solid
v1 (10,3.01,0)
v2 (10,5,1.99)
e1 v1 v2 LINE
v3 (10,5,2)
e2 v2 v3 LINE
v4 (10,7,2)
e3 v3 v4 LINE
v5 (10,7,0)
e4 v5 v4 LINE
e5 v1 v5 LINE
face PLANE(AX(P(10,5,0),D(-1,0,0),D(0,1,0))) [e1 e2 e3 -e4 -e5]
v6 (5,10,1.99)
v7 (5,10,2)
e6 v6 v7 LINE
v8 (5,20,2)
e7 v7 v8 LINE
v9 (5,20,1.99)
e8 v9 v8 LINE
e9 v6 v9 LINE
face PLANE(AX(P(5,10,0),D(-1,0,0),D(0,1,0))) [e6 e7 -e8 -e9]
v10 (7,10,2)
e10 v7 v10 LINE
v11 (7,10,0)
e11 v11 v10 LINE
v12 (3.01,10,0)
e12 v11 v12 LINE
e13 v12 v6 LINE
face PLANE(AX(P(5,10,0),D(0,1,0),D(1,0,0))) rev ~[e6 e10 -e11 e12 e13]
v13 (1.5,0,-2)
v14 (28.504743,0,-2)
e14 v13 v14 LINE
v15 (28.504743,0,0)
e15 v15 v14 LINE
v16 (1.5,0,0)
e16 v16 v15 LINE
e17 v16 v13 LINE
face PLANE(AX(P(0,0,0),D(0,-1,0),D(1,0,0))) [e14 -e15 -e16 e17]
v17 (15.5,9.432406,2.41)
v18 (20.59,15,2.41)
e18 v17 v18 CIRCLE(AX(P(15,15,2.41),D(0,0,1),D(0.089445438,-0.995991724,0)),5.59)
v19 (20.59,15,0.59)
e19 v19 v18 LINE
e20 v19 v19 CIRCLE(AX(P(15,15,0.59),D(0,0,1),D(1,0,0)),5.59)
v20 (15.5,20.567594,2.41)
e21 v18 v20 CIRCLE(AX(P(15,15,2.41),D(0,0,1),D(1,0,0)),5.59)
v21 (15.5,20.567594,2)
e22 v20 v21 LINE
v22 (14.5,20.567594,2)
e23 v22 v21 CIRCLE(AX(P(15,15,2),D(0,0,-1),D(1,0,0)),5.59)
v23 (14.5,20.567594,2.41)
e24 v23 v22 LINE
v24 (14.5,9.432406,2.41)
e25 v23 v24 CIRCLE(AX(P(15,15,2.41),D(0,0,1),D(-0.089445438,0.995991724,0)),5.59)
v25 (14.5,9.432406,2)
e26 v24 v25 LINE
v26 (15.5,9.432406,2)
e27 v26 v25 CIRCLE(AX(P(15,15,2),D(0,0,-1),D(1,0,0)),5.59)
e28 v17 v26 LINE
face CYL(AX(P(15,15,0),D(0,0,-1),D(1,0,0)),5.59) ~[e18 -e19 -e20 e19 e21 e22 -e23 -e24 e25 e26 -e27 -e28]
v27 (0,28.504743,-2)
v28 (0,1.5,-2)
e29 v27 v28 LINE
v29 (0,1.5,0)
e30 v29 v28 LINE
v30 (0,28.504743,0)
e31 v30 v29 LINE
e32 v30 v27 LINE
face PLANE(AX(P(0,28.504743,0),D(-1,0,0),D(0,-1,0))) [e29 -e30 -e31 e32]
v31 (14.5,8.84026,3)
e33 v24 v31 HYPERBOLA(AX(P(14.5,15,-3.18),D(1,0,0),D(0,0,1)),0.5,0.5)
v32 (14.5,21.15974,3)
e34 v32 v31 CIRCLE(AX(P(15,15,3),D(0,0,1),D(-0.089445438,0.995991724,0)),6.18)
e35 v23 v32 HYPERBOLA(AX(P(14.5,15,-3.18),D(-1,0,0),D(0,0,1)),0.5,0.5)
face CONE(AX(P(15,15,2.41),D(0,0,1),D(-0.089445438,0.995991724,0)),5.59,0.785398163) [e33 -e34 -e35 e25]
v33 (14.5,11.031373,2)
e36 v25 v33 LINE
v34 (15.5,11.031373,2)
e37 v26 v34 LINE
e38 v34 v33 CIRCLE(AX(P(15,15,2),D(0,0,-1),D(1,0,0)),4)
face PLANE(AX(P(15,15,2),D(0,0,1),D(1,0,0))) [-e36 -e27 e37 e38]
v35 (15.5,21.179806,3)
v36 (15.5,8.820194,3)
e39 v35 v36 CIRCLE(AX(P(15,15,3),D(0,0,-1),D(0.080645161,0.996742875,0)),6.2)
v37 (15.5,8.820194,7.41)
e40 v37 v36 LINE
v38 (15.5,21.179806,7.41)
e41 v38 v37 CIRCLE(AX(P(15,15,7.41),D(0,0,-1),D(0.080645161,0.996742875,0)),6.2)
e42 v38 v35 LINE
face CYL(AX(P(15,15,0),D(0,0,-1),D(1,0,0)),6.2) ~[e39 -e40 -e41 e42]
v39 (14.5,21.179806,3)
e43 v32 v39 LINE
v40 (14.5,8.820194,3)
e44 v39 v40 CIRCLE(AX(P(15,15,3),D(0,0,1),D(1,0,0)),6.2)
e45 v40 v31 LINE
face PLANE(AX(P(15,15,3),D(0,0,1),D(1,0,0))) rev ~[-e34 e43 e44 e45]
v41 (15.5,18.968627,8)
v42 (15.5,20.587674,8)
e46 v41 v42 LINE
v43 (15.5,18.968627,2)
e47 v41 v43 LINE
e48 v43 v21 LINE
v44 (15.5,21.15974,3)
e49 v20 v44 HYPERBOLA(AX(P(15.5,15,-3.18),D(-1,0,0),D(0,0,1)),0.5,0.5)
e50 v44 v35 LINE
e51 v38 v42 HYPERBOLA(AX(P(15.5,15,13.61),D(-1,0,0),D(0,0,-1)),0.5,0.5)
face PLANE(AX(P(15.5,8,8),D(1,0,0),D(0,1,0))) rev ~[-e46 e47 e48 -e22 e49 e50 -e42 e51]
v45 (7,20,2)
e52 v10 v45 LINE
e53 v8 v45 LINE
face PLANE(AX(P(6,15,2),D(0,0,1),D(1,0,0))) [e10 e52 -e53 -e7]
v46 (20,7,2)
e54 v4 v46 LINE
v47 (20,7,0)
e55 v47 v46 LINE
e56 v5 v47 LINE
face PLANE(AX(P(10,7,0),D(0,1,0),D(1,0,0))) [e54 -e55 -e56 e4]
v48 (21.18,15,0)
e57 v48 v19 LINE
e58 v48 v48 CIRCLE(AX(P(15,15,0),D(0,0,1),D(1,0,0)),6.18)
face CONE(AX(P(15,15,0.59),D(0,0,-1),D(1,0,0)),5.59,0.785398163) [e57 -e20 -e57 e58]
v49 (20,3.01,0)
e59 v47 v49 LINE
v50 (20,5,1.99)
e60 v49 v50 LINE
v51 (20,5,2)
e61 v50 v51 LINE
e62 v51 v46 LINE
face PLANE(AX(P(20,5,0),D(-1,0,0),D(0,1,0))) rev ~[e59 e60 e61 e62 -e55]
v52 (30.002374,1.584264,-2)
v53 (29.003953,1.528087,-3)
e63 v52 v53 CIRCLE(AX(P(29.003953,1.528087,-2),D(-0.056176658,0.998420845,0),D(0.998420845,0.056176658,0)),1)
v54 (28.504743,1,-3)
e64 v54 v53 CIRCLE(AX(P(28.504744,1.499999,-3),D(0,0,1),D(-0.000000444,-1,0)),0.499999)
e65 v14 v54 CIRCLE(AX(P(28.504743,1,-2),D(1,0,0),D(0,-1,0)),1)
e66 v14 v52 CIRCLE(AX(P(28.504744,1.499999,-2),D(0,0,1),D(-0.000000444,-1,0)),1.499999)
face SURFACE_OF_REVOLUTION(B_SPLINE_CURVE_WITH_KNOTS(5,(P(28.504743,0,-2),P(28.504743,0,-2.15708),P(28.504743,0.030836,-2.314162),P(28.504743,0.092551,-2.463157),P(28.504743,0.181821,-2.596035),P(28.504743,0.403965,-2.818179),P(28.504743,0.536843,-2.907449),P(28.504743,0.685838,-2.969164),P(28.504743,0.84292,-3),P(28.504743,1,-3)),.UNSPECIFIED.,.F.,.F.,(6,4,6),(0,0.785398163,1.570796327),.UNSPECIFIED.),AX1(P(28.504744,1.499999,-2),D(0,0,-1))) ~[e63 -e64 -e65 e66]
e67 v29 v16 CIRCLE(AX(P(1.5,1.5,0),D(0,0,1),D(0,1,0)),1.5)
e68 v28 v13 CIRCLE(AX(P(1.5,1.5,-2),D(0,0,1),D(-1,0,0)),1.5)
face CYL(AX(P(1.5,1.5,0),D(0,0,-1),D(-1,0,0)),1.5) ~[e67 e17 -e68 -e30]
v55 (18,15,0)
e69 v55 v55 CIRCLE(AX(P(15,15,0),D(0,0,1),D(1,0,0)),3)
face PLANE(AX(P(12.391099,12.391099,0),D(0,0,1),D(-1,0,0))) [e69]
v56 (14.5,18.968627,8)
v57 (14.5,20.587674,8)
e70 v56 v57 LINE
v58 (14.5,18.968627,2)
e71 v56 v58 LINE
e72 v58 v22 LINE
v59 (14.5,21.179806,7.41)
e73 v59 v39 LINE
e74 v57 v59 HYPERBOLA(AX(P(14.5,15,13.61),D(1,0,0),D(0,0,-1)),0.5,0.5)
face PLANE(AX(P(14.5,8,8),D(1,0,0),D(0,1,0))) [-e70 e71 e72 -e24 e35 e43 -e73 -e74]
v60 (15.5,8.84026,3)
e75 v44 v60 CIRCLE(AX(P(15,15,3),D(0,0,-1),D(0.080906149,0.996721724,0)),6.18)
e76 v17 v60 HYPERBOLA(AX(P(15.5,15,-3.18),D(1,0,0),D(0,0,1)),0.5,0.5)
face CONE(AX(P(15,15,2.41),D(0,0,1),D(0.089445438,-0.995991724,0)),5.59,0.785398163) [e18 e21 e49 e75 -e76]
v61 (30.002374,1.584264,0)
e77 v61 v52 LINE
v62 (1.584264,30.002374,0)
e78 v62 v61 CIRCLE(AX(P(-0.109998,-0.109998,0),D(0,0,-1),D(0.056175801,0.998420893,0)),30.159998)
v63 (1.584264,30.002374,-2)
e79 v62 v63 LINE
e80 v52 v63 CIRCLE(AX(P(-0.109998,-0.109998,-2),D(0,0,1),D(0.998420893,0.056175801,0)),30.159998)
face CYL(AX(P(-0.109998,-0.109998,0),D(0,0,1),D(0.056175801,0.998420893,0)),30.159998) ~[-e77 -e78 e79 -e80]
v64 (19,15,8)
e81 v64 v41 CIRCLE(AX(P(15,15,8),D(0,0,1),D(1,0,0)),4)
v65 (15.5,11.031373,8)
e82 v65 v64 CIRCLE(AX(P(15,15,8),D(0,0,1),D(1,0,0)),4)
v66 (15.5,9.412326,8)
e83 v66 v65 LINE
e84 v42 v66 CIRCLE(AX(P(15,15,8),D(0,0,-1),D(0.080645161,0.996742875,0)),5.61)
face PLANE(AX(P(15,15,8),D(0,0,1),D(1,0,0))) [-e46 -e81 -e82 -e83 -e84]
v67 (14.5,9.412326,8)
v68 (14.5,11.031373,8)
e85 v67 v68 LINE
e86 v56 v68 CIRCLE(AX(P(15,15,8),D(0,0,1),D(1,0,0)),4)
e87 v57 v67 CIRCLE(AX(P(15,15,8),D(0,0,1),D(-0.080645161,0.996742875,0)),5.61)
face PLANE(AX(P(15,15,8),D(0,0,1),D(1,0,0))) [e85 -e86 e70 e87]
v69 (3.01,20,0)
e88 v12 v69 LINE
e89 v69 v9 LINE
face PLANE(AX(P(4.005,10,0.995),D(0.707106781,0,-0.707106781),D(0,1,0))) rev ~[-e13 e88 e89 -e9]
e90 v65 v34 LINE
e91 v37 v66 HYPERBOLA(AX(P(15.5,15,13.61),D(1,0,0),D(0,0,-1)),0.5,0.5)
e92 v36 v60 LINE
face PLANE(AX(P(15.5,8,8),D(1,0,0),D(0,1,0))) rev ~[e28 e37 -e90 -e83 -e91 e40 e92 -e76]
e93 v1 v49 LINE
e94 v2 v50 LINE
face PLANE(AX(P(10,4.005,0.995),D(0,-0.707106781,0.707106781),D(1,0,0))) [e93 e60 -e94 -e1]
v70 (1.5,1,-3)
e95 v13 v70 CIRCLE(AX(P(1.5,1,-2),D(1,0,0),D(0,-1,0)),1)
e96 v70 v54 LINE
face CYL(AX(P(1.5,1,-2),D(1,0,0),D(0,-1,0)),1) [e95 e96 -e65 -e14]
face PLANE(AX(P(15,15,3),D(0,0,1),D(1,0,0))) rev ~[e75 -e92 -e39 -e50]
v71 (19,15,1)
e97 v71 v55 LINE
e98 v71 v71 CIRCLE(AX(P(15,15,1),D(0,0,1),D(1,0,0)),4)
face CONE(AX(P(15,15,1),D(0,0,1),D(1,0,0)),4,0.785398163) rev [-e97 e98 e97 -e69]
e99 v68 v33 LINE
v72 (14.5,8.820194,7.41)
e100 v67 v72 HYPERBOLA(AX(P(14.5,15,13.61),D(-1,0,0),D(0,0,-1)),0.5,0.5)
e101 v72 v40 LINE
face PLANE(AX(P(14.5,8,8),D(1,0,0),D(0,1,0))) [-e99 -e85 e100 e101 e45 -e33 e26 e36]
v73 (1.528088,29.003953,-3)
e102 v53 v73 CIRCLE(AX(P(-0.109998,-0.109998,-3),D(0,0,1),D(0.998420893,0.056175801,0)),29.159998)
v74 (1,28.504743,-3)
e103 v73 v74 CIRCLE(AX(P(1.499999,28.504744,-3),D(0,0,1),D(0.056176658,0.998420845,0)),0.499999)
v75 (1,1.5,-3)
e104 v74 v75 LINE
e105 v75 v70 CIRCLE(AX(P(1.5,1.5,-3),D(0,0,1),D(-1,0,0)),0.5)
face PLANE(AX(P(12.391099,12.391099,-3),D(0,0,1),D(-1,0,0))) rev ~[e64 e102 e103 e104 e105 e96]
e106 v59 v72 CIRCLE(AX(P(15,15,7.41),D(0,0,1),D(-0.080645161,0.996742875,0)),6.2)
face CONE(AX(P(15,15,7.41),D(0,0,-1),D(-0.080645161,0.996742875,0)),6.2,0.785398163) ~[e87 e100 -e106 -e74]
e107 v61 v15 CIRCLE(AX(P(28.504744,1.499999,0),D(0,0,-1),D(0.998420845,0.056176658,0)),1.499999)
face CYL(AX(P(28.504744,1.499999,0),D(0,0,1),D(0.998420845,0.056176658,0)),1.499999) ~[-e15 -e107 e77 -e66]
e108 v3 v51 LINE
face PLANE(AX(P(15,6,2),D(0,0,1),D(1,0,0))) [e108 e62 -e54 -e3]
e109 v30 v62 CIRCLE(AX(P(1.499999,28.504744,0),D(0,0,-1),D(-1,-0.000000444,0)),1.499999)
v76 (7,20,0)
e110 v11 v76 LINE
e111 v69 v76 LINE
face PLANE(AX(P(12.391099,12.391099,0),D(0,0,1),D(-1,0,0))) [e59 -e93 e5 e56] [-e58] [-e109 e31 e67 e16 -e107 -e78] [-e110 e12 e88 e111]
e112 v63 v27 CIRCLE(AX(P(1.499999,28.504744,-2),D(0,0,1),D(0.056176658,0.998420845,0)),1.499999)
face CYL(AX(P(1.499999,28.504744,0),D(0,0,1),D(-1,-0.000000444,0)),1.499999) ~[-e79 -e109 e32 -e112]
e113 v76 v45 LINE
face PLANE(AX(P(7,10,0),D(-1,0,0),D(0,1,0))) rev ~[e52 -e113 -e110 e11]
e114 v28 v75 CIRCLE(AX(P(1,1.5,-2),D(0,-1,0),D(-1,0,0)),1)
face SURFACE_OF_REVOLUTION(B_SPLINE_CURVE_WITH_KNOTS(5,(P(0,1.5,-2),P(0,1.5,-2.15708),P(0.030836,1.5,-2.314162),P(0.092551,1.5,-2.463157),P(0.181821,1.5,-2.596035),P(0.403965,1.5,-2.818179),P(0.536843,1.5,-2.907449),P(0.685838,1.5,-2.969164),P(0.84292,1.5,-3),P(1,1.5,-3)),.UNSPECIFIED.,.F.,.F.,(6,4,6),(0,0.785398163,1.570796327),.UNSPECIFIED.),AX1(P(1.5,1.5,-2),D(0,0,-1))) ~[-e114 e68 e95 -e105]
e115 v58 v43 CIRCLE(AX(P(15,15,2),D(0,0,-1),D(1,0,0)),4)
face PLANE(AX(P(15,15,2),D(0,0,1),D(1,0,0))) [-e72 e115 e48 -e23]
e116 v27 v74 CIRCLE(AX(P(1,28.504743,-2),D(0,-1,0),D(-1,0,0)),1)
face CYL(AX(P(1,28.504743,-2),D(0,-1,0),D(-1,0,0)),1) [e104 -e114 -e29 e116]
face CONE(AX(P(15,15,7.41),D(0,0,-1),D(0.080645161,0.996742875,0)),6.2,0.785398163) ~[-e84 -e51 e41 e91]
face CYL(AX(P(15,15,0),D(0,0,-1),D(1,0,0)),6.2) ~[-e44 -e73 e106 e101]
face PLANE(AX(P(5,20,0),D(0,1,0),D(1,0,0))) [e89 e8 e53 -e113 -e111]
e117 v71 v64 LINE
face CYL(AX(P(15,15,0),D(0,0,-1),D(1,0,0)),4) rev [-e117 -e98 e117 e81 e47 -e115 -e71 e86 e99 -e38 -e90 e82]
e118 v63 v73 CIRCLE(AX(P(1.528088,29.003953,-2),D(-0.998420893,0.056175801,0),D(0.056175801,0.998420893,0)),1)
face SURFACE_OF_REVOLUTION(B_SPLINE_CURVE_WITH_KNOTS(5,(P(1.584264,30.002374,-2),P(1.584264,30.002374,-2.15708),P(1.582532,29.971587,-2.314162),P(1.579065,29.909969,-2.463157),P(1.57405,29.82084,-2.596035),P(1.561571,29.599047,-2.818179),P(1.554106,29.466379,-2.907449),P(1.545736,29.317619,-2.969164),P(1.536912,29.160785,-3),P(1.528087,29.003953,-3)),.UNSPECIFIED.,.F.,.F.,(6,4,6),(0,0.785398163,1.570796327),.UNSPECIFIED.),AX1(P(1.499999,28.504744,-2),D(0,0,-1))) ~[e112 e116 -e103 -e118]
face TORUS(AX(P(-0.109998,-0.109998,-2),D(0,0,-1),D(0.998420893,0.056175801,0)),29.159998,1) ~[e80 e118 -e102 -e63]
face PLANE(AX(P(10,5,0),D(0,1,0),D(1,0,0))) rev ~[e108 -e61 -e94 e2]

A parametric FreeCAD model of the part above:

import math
import FreeCAD as App
import Part
import Sketcher
Q = App.Units.Quantity


def edges_at(feature, points):
    """Names of the edges that pass closest to the given points."""
    edges = feature.Shape.Edges
    near = lambda p: min(range(len(edges)), key=lambda i: edges[i].distToShape(Part.Vertex(*p))[0])
    return sorted({f"Edge{near(p) + 1}" for p in points})


def add_polygon(sketch, points):
    """Adds a closed chain of lines whose ends are joined by coincident constraints."""
    first, n = sketch.GeometryCount, len(points)
    for a, b in zip(points, points[1:] + points[:1]):
        sketch.addGeometry(Part.LineSegment(App.Vector(*a, 0), App.Vector(*b, 0)), False)
    for i in range(n):
        sketch.addConstraint(Sketcher.Constraint("Coincident", first + i, 2, first + (i + 1) % n, 1))

doc = App.newDocument("Part")
body = doc.addObject("PartDesign::Body", "Body")

sketch1 = body.newObject("Sketcher::SketchObject", "Sketch")
sketch1.AttachmentSupport = (doc.getObject("XY_Plane"), [""])
sketch1.MapMode = "FlatFace"
sketch1.addGeometry([
    Part.Circle(App.Vector(15, 15, 0), App.Vector(0, 0, 1), 6.2),
    Part.Circle(App.Vector(15, 15, 0), App.Vector(0, 0, 1), 4),
], False)
sketch1.addConstraint([
    Sketcher.Constraint("Coincident", 1, 3, 0, 3),
    Sketcher.Constraint("Diameter", 1, Q("8 mm")),
    Sketcher.Constraint("Diameter", 0, Q("12.4 mm")),
    Sketcher.Constraint("DistanceX", -1, 1, 0, 3, Q("15 mm")),
    Sketcher.Constraint("DistanceY", -1, 1, 0, 3, Q("15 mm")),
])
pad1 = body.newObject("PartDesign::Pad", "Pad")
pad1.Profile = sketch1
pad1.Length = 8

sketch2 = body.newObject("Sketcher::SketchObject", "Sketch001")
sketch2.AttachmentSupport = (doc.getObject("XY_Plane"), [""])
sketch2.MapMode = "FlatFace"
sketch2.addGeometry([
    Part.LineSegment(App.Vector(0, 0, 0), App.Vector(0, 28.5, 0)),
    Part.ArcOfCircle(Part.Circle(App.Vector(1.5, 28.5, 0), App.Vector(0, 0, 1), 1.5), math.radians(87), math.radians(180)),
    Part.ArcOfCircle(Part.Circle(App.Vector(-0.1, -0.1, 0), App.Vector(0, 0, 1), 30.2), math.radians(3), math.radians(87)),
    Part.ArcOfCircle(Part.Circle(App.Vector(28.5, 1.5, 0), App.Vector(0, 0, 1), 1.5), math.radians(-90), math.radians(3)),
    Part.LineSegment(App.Vector(28.5, 0, 0), App.Vector(0, 0, 0)),
], False)
sketch2.addConstraint([
    Sketcher.Constraint("Tangent", 0, 2, 1, 2),
    Sketcher.Constraint("Tangent", 1, 1, 2, 2),
    Sketcher.Constraint("Tangent", 2, 1, 3, 2),
    Sketcher.Constraint("Tangent", 3, 1, 4, 1),
    Sketcher.Constraint("Coincident", 4, 2, 0, 1),
    Sketcher.Constraint("Vertical", 0),
    Sketcher.Constraint("Horizontal", 4),
    Sketcher.Constraint("Coincident", 4, 2, -1, 1),
    Sketcher.Constraint("Equal", 1, 3),
    Sketcher.Constraint("Equal", 4, 0),
    Sketcher.Constraint("Radius", 1, Q("1.499999 mm")),
    Sketcher.Constraint("DistanceX", 2, 3, -1, 1, Q("0.109998 mm")),
    Sketcher.Constraint("Radius", 2, Q("30.159998 mm")),
])
pad2 = body.newObject("PartDesign::Pad", "Pad001")
pad2.Profile = sketch2
pad2.Length = 3
pad2.Reversed = True
doc.recompute()

fillet = body.newObject("PartDesign::Fillet", "Fillet")
fillet.Base = (pad2, edges_at(pad2, [(0, 0, -1.5)]))
fillet.Radius = 1.5
doc.recompute()

fillet2 = body.newObject("PartDesign::Fillet", "Fillet001")
fillet2.Base = (fillet, edges_at(fillet, [
    (0, 15.002, -3),
    (0.439, 0.439, -3),
    (0.47, 29.595, -3),
    (15.002, 0, -3),
    (21.216, 21.216, -3),
    (29.595, 0.47, -3),
]))
fillet2.Radius = 1

sketch3 = body.newObject("Sketcher::SketchObject", "Sketch002")
sketch3.AttachmentSupport = (doc.getObject("XY_Plane"), [""])
sketch3.MapMode = "FlatFace"
add_polygon(sketch3, [(5, 20), (5, 10), (7, 10), (7, 20)])
add_polygon(sketch3, [(10, 7), (10, 5), (20, 5), (20, 7)])
sketch3.addConstraint([
    Sketcher.Constraint("Vertical", 0),
    Sketcher.Constraint("Horizontal", 1),
    Sketcher.Constraint("Vertical", 2),
    Sketcher.Constraint("Horizontal", 3),
    Sketcher.Constraint("Vertical", 4),
    Sketcher.Constraint("Horizontal", 5),
    Sketcher.Constraint("Vertical", 6),
    Sketcher.Constraint("Horizontal", 7),
    Sketcher.Constraint("Equal", 7, 0),
    Sketcher.Constraint("Equal", 3, 4),
    Sketcher.Constraint("DistanceX", 1, 1, 1, 2, Q("2 mm")),
    Sketcher.Constraint("DistanceX", 5, 1, 5, 2, Q("10 mm")),
    Sketcher.Constraint("DistanceX", -1, 1, 0, 2, Q("5 mm")),
    Sketcher.Constraint("DistanceY", -1, 1, 0, 2, Q("10 mm")),
    Sketcher.Constraint("DistanceX", -1, 1, 4, 2, Q("10 mm")),
    Sketcher.Constraint("DistanceY", -1, 1, 4, 2, Q("5 mm")),
])
pad3 = body.newObject("PartDesign::Pad", "Pad002")
pad3.Profile = sketch3
pad3.Length = 2
doc.recompute()

chamfer = body.newObject("PartDesign::Chamfer", "Chamfer")
chamfer.Base = (pad3, edges_at(pad3, [(15, 5, 0), (5, 15, 0)]))
chamfer.Size = 1.99

sketch4 = body.newObject("Sketcher::SketchObject", "Sketch003")
sketch4.AttachmentSupport = (doc.getObject("XY_Plane"), [""])
sketch4.MapMode = "FlatFace"
sketch4.addGeometry([
    Part.Circle(App.Vector(15, 15, 0), App.Vector(0, 0, 1), 6),
    Part.Circle(App.Vector(15, 15, 0), App.Vector(0, 0, 1), 6),
], False)
sketch4.addConstraint([
    Sketcher.Constraint("Coincident", 1, 3, 0, 3),
    Sketcher.Constraint("Diameter", 0, Q("12.4 mm")),
    Sketcher.Constraint("Diameter", 1, Q("11.18 mm")),
    Sketcher.Constraint("DistanceX", -1, 1, 0, 3, Q("15 mm")),
    Sketcher.Constraint("DistanceY", -1, 1, 0, 3, Q("15 mm")),
])
pocket1 = body.newObject("PartDesign::Pocket", "Pocket")
pocket1.Profile = sketch4
pocket1.Length = 3
pocket1.Reversed = True

sketch5 = body.newObject("Sketcher::SketchObject", "Sketch004")
sketch5.AttachmentSupport = (doc.getObject("XY_Plane"), [""])
sketch5.MapMode = "FlatFace"
sketch5.AttachmentOffset = App.Placement(App.Vector(0, 0, 8), App.Rotation())
add_polygon(sketch5, [(14.5, 22), (14.5, 8), (15.5, 8), (15.5, 22)])
sketch5.addConstraint([
    Sketcher.Constraint("Vertical", 0),
    Sketcher.Constraint("Horizontal", 1),
    Sketcher.Constraint("Vertical", 2),
    Sketcher.Constraint("Horizontal", 3),
    Sketcher.Constraint("DistanceX", 1, 1, 1, 2, Q("1 mm")),
    Sketcher.Constraint("DistanceY", 0, 2, 0, 1, Q("14 mm")),
    Sketcher.Constraint("DistanceY", -1, 1, 0, 2, Q("8 mm")),
    Sketcher.Constraint("DistanceX", -1, 1, 0, 2, Q("14.5 mm")),
])
pocket2 = body.newObject("PartDesign::Pocket", "Pocket001")
pocket2.Profile = sketch5
pocket2.Length = 6
doc.recompute()

chamfer2 = body.newObject("PartDesign::Chamfer", "Chamfer001")
chamfer2.Base = (pocket2, edges_at(pocket2, [
    (21.2, 15, 8),
    (19.126, 18.772, 3),
    (9.41, 15, 3),
    (9.41, 15, 0),
    (8.8, 15, 8),
]))
chamfer2.Size = 0.59
doc.recompute()

chamfer3 = body.newObject("PartDesign::Chamfer", "Chamfer002")
chamfer3.Base = (chamfer2, edges_at(chamfer2, [(11, 15, 0)]))
chamfer3.Size = 1

doc.recompute()
